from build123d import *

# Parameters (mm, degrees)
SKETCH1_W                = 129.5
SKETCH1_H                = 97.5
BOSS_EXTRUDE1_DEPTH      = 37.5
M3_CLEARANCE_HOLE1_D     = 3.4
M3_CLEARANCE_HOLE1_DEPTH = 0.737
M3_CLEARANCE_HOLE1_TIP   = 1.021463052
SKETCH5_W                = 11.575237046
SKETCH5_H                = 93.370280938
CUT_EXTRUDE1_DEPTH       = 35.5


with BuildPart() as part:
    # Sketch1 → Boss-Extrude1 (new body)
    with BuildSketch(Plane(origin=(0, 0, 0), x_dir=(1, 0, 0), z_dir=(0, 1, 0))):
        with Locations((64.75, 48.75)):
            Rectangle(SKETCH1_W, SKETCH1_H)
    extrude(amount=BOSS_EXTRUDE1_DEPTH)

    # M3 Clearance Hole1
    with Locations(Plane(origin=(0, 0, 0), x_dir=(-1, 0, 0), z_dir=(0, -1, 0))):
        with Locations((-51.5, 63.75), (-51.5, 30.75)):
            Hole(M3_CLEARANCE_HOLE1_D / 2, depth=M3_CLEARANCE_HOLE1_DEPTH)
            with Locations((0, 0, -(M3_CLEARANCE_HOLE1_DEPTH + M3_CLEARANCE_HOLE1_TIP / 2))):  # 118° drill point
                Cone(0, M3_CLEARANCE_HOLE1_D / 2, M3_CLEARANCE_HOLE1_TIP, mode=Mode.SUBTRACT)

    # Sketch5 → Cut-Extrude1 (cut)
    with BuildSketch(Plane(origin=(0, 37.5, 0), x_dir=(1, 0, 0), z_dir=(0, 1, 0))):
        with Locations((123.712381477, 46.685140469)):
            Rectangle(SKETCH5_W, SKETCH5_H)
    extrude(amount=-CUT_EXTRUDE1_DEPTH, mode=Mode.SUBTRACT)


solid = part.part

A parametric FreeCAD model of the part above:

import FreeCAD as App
import Part
import Sketcher
from FreeCAD import Vector

doc = App.newDocument("Part")
params = doc.addObject("Spreadsheet::Sheet", "Params")
for row, (alias, value) in enumerate([
    ("sketch1_width", "129.5 mm"),
    ("sketch1_height", "97.5 mm"),
    ("pad1_length", "37.5 mm"),
    ("sketch2_diameter", "3.4 mm"),
    ("hole_diameter", "3.4 mm"),
    ("hole_depth", "0.737 mm"),
    ("pocket1_length", "35.5 mm"),
], start=1):
    params.set(f"A{row}", alias)
    params.set(f"B{row}", "=" + value)
    params.setAlias(f"B{row}", alias)

body = doc.addObject("PartDesign::Body", "Body")

sketch1 = body.newObject("Sketcher::SketchObject", "Sketch")
sketch1.AttachmentSupport = (doc.getObject("XZ_Plane"), [""])
sketch1.MapMode = "FlatFace"
sketch1.addGeometry([
    Part.LineSegment(Vector(0, -98, 0), Vector(0, 0, 0)),
    Part.LineSegment(Vector(0, 0, 0), Vector(130, 0, 0)),
    Part.LineSegment(Vector(130, 0, 0), Vector(130, -98, 0)),
    Part.LineSegment(Vector(130, -98, 0), Vector(0, -98, 0)),
], False)
sketch1.addConstraint([
    Sketcher.Constraint("Coincident", 0, 2, 1, 1),
    Sketcher.Constraint("Coincident", 1, 2, 2, 1),
    Sketcher.Constraint("Coincident", 2, 2, 3, 1),
    Sketcher.Constraint("Coincident", 3, 2, 0, 1),
    Sketcher.Constraint("Vertical", 0),
    Sketcher.Constraint("Horizontal", 1),
    Sketcher.Constraint("Vertical", 2),
    Sketcher.Constraint("Horizontal", 3),
    Sketcher.Constraint("Coincident", 0, 2, -1, 1),
    Sketcher.Constraint("DistanceX", 1, 1, 1, 2, 129.5),
    Sketcher.Constraint("DistanceY", 0, 1, 0, 2, 97.5),
])
sketch1.setExpression("Constraints[9]", "Params.sketch1_width")
sketch1.setExpression("Constraints[10]", "Params.sketch1_height")
pad1 = body.newObject("PartDesign::Pad", "Pad")
pad1.Profile = sketch1
pad1.setExpression("Length", "Params.pad1_length")
pad1.Reversed = True

sketch2 = body.newObject("Sketcher::SketchObject", "Sketch001")
sketch2.AttachmentSupport = (doc.getObject("XZ_Plane"), [""])
sketch2.MapMode = "FlatFace"
sketch2.addGeometry([
    Part.Circle(Vector(51.5, -63.8, 0), Vector(0, 0, 1), 1.7),
    Part.Circle(Vector(51.5, -30.8, 0), Vector(0, 0, 1), 1.7),
], False)
sketch2.addConstraint([
    Sketcher.Constraint("Equal", 0, 1),
    Sketcher.Constraint("Vertical", 0, 3, 1, 3),
    Sketcher.Constraint("Diameter", 0, 3.4),
    Sketcher.Constraint("DistanceY", 0, 3, 1, 3, 33.0),
    Sketcher.Constraint("DistanceX", -1, 1, 0, 3, 51.5),
    Sketcher.Constraint("DistanceY", 0, 3, -1, 1, 63.75),
])
sketch2.setExpression("Constraints[2]", "Params.sketch2_diameter")
doc.recompute()
hole = body.newObject("PartDesign::Hole", "Hole")
hole.Profile = sketch2
hole.ThreadType = "None"
hole.setExpression("Diameter", "Params.hole_diameter")
hole.DepthType = "Dimension"
hole.setExpression("Depth", "Params.hole_depth")
hole.DrillPoint = "Angled"
hole.DrillPointAngle = 118

sketch3 = body.newObject("Sketcher::SketchObject", "Sketch002")
sketch3.AttachmentSupport = (doc.getObject("XZ_Plane"), [""])
sketch3.MapMode = "FlatFace"
sketch3.AttachmentOffset = App.Placement(Vector(0, 0, -37.5), App.Rotation())
sketch3.addGeometry([
    Part.LineSegment(Vector(118, -93, 0), Vector(118, 0, 0)),
    Part.LineSegment(Vector(118, 0, 0), Vector(130, 0, 0)),
    Part.LineSegment(Vector(130, 0, 0), Vector(130, -93, 0)),
    Part.LineSegment(Vector(130, -93, 0), Vector(118, -93, 0)),
], False)
sketch3.addConstraint([
    Sketcher.Constraint("Coincident", 0, 2, 1, 1),
    Sketcher.Constraint("Coincident", 1, 2, 2, 1),
    Sketcher.Constraint("Coincident", 2, 2, 3, 1),
    Sketcher.Constraint("Coincident", 3, 2, 0, 1),
    Sketcher.Constraint("Vertical", 0),
    Sketcher.Constraint("Horizontal", 1),
    Sketcher.Constraint("Vertical", 2),
    Sketcher.Constraint("Horizontal", 3),
    Sketcher.Constraint("PointOnObject", 0, 2, -1),
    Sketcher.Constraint("DistanceX", -1, 1, 1, 2, 129.5),
    Sketcher.Constraint("DistanceY", 0, 1, 0, 2, 93.370281),
    Sketcher.Constraint("DistanceX", 1, 1, 1, 2, 11.575237),
])
pocket1 = body.newObject("PartDesign::Pocket", "Pocket")
pocket1.Profile = sketch3
pocket1.setExpression("Length", "Params.pocket1_length")
pocket1.Reversed = True

doc.recompute()
